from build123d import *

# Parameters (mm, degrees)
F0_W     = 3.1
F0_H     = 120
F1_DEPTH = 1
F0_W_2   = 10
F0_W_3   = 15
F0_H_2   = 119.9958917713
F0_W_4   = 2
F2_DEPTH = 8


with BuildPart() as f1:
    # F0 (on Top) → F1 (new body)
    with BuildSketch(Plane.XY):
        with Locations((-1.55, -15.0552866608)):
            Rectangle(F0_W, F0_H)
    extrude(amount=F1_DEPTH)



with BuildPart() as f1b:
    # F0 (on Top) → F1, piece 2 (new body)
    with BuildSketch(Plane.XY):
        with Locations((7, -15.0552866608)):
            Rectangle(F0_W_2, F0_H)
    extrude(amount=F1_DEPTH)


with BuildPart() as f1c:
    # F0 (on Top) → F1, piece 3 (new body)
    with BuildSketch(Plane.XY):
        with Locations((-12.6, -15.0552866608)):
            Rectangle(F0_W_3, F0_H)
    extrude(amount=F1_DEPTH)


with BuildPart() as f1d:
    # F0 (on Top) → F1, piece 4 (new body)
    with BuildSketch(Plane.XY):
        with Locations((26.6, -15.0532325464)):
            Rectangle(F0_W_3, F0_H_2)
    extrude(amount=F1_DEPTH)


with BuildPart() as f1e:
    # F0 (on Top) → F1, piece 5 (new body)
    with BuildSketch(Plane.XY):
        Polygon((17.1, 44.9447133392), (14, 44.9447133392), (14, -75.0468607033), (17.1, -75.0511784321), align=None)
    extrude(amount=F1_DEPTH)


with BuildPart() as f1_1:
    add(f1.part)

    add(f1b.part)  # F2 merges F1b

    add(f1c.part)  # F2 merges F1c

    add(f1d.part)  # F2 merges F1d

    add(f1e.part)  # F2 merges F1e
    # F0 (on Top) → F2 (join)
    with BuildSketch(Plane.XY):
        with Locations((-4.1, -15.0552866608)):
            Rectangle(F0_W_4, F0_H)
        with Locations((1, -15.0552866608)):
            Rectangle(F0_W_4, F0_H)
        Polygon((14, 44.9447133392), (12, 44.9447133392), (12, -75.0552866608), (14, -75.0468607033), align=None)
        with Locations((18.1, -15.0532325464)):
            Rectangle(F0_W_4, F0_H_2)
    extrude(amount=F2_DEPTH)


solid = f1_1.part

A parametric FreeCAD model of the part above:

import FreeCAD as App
import Part
import Sketcher
Q = App.Units.Quantity

doc = App.newDocument("Part")
body = doc.addObject("PartDesign::Body", "Body")

sketch1 = body.newObject("Sketcher::SketchObject", "Sketch")
sketch1.AttachmentSupport = (doc.getObject("XY_Plane"), [""])
sketch1.MapMode = "FlatFace"
sketch1.addGeometry([
    Part.LineSegment(App.Vector(-3.1, 44.9, 0), App.Vector(-3.1, -75.1, 0)),
    Part.LineSegment(App.Vector(-3.1, -75.1, 0), App.Vector(0, -75.1, 0)),
    Part.LineSegment(App.Vector(0, -75.1, 0), App.Vector(0, 44.9, 0)),
    Part.LineSegment(App.Vector(0, 44.9, 0), App.Vector(-3.1, 44.9, 0)),
], False)
sketch1.addConstraint([
    Sketcher.Constraint("Coincident", 0, 2, 1, 1),
    Sketcher.Constraint("Coincident", 1, 2, 2, 1),
    Sketcher.Constraint("Coincident", 2, 2, 3, 1),
    Sketcher.Constraint("Coincident", 3, 2, 0, 1),
    Sketcher.Constraint("Vertical", 0),
    Sketcher.Constraint("Horizontal", 1),
    Sketcher.Constraint("Vertical", 2),
    Sketcher.Constraint("Horizontal", 3),
    Sketcher.Constraint("PointOnObject", 1, 2, -2),
    Sketcher.Constraint("DistanceY", 0, 2, 0, 1, Q("120 mm")),
    Sketcher.Constraint("DistanceX", 1, 1, 1, 2, Q("3.1 mm")),
    Sketcher.Constraint("DistanceY", 0, 2, -1, 1, Q("75.055287 mm")),
])
pad1 = body.newObject("PartDesign::Pad", "Pad")
pad1.Profile = sketch1
pad1.Length = 1
body2 = doc.addObject("PartDesign::Body", "Body001")

sketch2 = body2.newObject("Sketcher::SketchObject", "Sketch001")
sketch2.AttachmentSupport = (doc.getObject("XY_Plane001"), [""])
sketch2.MapMode = "FlatFace"
sketch2.addGeometry([
    Part.LineSegment(App.Vector(2, 45, 0), App.Vector(2, -75, 0)),
    Part.LineSegment(App.Vector(2, -75, 0), App.Vector(12, -75, 0)),
    Part.LineSegment(App.Vector(12, -75, 0), App.Vector(12, 45, 0)),
    Part.LineSegment(App.Vector(12, 45, 0), App.Vector(2, 45, 0)),
], False)
sketch2.addConstraint([
    Sketcher.Constraint("Coincident", 0, 2, 1, 1),
    Sketcher.Constraint("Coincident", 1, 2, 2, 1),
    Sketcher.Constraint("Coincident", 2, 2, 3, 1),
    Sketcher.Constraint("Coincident", 3, 2, 0, 1),
    Sketcher.Constraint("Vertical", 0),
    Sketcher.Constraint("Horizontal", 1),
    Sketcher.Constraint("Vertical", 2),
    Sketcher.Constraint("Horizontal", 3),
    Sketcher.Constraint("DistanceX", 1, 1, 1, 2, Q("10 mm")),
    Sketcher.Constraint("DistanceY", 0, 2, 0, 1, Q("120 mm")),
    Sketcher.Constraint("DistanceX", -1, 1, 0, 2, Q("2 mm")),
    Sketcher.Constraint("DistanceY", 0, 2, -1, 1, Q("75.055287 mm")),
])
pad2 = body2.newObject("PartDesign::Pad", "Pad001")
pad2.Profile = sketch2
pad2.Length = 1
body3 = doc.addObject("PartDesign::Body", "Body002")

sketch3 = body3.newObject("Sketcher::SketchObject", "Sketch002")
sketch3.AttachmentSupport = (doc.getObject("XY_Plane002"), [""])
sketch3.MapMode = "FlatFace"
sketch3.addGeometry([
    Part.LineSegment(App.Vector(-20, 45, 0), App.Vector(-20, -75, 0)),
    Part.LineSegment(App.Vector(-20, -75, 0), App.Vector(-5, -75, 0)),
    Part.LineSegment(App.Vector(-5, -75, 0), App.Vector(-5, 45, 0)),
    Part.LineSegment(App.Vector(-5, 45, 0), App.Vector(-20, 45, 0)),
], False)
sketch3.addConstraint([
    Sketcher.Constraint("Coincident", 0, 2, 1, 1),
    Sketcher.Constraint("Coincident", 1, 2, 2, 1),
    Sketcher.Constraint("Coincident", 2, 2, 3, 1),
    Sketcher.Constraint("Coincident", 3, 2, 0, 1),
    Sketcher.Constraint("Vertical", 0),
    Sketcher.Constraint("Horizontal", 1),
    Sketcher.Constraint("Vertical", 2),
    Sketcher.Constraint("Horizontal", 3),
    Sketcher.Constraint("DistanceX", 1, 1, 1, 2, Q("15 mm")),
    Sketcher.Constraint("DistanceY", 0, 2, 0, 1, Q("120 mm")),
    Sketcher.Constraint("DistanceX", 0, 2, -1, 1, Q("20.1 mm")),
    Sketcher.Constraint("DistanceY", 0, 2, -1, 1, Q("75.055287 mm")),
])
pad3 = body3.newObject("PartDesign::Pad", "Pad002")
pad3.Profile = sketch3
pad3.Length = 1
body4 = doc.addObject("PartDesign::Body", "Body003")

sketch4 = body4.newObject("Sketcher::SketchObject", "Sketch003")
sketch4.AttachmentSupport = (doc.getObject("XY_Plane003"), [""])
sketch4.MapMode = "FlatFace"
sketch4.addGeometry([
    Part.LineSegment(App.Vector(19, 45, 0), App.Vector(19, -75, 0)),
    Part.LineSegment(App.Vector(19, -75, 0), App.Vector(34, -75, 0)),
    Part.LineSegment(App.Vector(34, -75, 0), App.Vector(34, 45, 0)),
    Part.LineSegment(App.Vector(34, 45, 0), App.Vector(19, 45, 0)),
], False)
sketch4.addConstraint([
    Sketcher.Constraint("Coincident", 0, 2, 1, 1),
    Sketcher.Constraint("Coincident", 1, 2, 2, 1),
    Sketcher.Constraint("Coincident", 2, 2, 3, 1),
    Sketcher.Constraint("Coincident", 3, 2, 0, 1),
    Sketcher.Constraint("Vertical", 0),
    Sketcher.Constraint("Horizontal", 1),
    Sketcher.Constraint("Vertical", 2),
    Sketcher.Constraint("Horizontal", 3),
    Sketcher.Constraint("DistanceX", 1, 1, 1, 2, Q("15 mm")),
    Sketcher.Constraint("DistanceX", -1, 1, 0, 2, Q("19.1 mm")),
    Sketcher.Constraint("DistanceY", 0, 2, 0, 1, Q("119.995892 mm")),
    Sketcher.Constraint("DistanceY", 0, 2, -1, 1, Q("75.051178 mm")),
])
pad4 = body4.newObject("PartDesign::Pad", "Pad003")
pad4.Profile = sketch4
pad4.Length = 1
body5 = doc.addObject("PartDesign::Body", "Body004")

sketch5 = body5.newObject("Sketcher::SketchObject", "Sketch004")
sketch5.AttachmentSupport = (doc.getObject("XY_Plane004"), [""])
sketch5.MapMode = "FlatFace"
sketch5.addGeometry([
    Part.LineSegment(App.Vector(17.1, 44.9, 0), App.Vector(14, 44.9, 0)),
    Part.LineSegment(App.Vector(14, 44.9, 0), App.Vector(14, -75, 0)),
    Part.LineSegment(App.Vector(14, -75, 0), App.Vector(17.1, -75.1, 0)),
    Part.LineSegment(App.Vector(17.1, -75.1, 0), App.Vector(17.1, 44.9, 0)),
], False)
sketch5.addConstraint([
    Sketcher.Constraint("Coincident", 0, 2, 1, 1),
    Sketcher.Constraint("Coincident", 1, 2, 2, 1),
    Sketcher.Constraint("Coincident", 2, 2, 3, 1),
    Sketcher.Constraint("Coincident", 3, 2, 0, 1),
    Sketcher.Constraint("Horizontal", 0),
    Sketcher.Constraint("Vertical", 1),
    Sketcher.Constraint("Vertical", 3),
    Sketcher.Constraint("DistanceX", 0, 2, 0, 1, Q("3.1 mm")),
    Sketcher.Constraint("DistanceX", -1, 1, 0, 2, Q("14 mm")),
    Sketcher.Constraint("DistanceY", 3, 1, 3, 2, Q("119.995892 mm")),
    Sketcher.Constraint("DistanceY", 1, 2, 1, 1, Q("119.991574 mm")),
    Sketcher.Constraint("DistanceY", 1, 2, -1, 1, Q("75.046861 mm")),
])
pad5 = body5.newObject("PartDesign::Pad", "Pad004")
pad5.Profile = sketch5
pad5.Length = 1
body.AllowCompound = True
doc.recompute()

boolean = body.newObject("PartDesign::Boolean", "Boolean")
boolean.Type = "Fuse"
boolean.addObjects([body2])
doc.recompute()

boolean2 = body.newObject("PartDesign::Boolean", "Boolean001")
boolean2.Type = "Fuse"
boolean2.addObjects([body3])
doc.recompute()

boolean3 = body.newObject("PartDesign::Boolean", "Boolean002")
boolean3.Type = "Fuse"
boolean3.addObjects([body4])
doc.recompute()

boolean4 = body.newObject("PartDesign::Boolean", "Boolean003")
boolean4.Type = "Fuse"
boolean4.addObjects([body5])

sketch6 = body.newObject("Sketcher::SketchObject", "Sketch005")
sketch6.AttachmentSupport = (doc.getObject("XY_Plane"), [""])
sketch6.MapMode = "FlatFace"
sketch6.addGeometry([
    Part.LineSegment(App.Vector(-5.1, 44.9, 0), App.Vector(-5.1, -75.1, 0)),
    Part.LineSegment(App.Vector(-5.1, -75.1, 0), App.Vector(-3.1, -75.1, 0)),
    Part.LineSegment(App.Vector(-3.1, -75.1, 0), App.Vector(-3.1, 44.9, 0)),
    Part.LineSegment(App.Vector(-3.1, 44.9, 0), App.Vector(-5.1, 44.9, 0)),
    Part.LineSegment(App.Vector(0, 44.9, 0), App.Vector(0, -75.1, 0)),
    Part.LineSegment(App.Vector(0, -75.1, 0), App.Vector(2, -75.1, 0)),
    Part.LineSegment(App.Vector(2, -75.1, 0), App.Vector(2, 44.9, 0)),
    Part.LineSegment(App.Vector(2, 44.9, 0), App.Vector(0, 44.9, 0)),
    Part.LineSegment(App.Vector(14, 44.9, 0), App.Vector(12, 44.9, 0)),
    Part.LineSegment(App.Vector(12, 44.9, 0), App.Vector(12, -75.1, 0)),
    Part.LineSegment(App.Vector(12, -75.1, 0), App.Vector(14, -75, 0)),
    Part.LineSegment(App.Vector(14, -75, 0), App.Vector(14, 44.9, 0)),
    Part.LineSegment(App.Vector(17.1, 44.9, 0), App.Vector(17.1, -75.1, 0)),
    Part.LineSegment(App.Vector(17.1, -75.1, 0), App.Vector(19.1, -75.1, 0)),
    Part.LineSegment(App.Vector(19.1, -75.1, 0), App.Vector(19.1, 44.9, 0)),
    Part.LineSegment(App.Vector(19.1, 44.9, 0), App.Vector(17.1, 44.9, 0)),
], False)
sketch6.addConstraint([
    Sketcher.Constraint("Coincident", 0, 2, 1, 1),
    Sketcher.Constraint("Coincident", 1, 2, 2, 1),
    Sketcher.Constraint("Coincident", 2, 2, 3, 1),
    Sketcher.Constraint("Coincident", 3, 2, 0, 1),
    Sketcher.Constraint("Coincident", 4, 2, 5, 1),
    Sketcher.Constraint("Coincident", 5, 2, 6, 1),
    Sketcher.Constraint("Coincident", 6, 2, 7, 1),
    Sketcher.Constraint("Coincident", 7, 2, 4, 1),
    Sketcher.Constraint("Coincident", 8, 2, 9, 1),
    Sketcher.Constraint("Coincident", 9, 2, 10, 1),
    Sketcher.Constraint("Coincident", 10, 2, 11, 1),
    Sketcher.Constraint("Coincident", 11, 2, 8, 1),
    Sketcher.Constraint("Coincident", 12, 2, 13, 1),
    Sketcher.Constraint("Coincident", 13, 2, 14, 1),
    Sketcher.Constraint("Coincident", 14, 2, 15, 1),
    Sketcher.Constraint("Coincident", 15, 2, 12, 1),
    Sketcher.Constraint("Vertical", 0),
    Sketcher.Constraint("Horizontal", 1),
    Sketcher.Constraint("Vertical", 2),
    Sketcher.Constraint("Horizontal", 3),
    Sketcher.Constraint("Vertical", 4),
    Sketcher.Constraint("Horizontal", 5),
    Sketcher.Constraint("Vertical", 6),
    Sketcher.Constraint("Horizontal", 7),
    Sketcher.Constraint("Horizontal", 8),
    Sketcher.Constraint("Vertical", 9),
    Sketcher.Constraint("Vertical", 11),
    Sketcher.Constraint("Vertical", 12),
    Sketcher.Constraint("Horizontal", 13),
    Sketcher.Constraint("Vertical", 14),
    Sketcher.Constraint("Horizontal", 15),
    Sketcher.Constraint("PointOnObject", 4, 2, -2),
    Sketcher.Constraint("Horizontal", 1, 2, 4, 2),
    Sketcher.Constraint("Horizontal", 3, 2, 6, 2),
    Sketcher.Constraint("Horizontal", 7, 2, 8, 2),
    Sketcher.Constraint("Horizontal", 5, 2, 9, 2),
    Sketcher.Constraint("Horizontal", 11, 2, 14, 2),
    Sketcher.Constraint("Equal", 3, 5),
    Sketcher.Constraint("Equal", 7, 8),
    Sketcher.Constraint("Equal", 8, 13),
    Sketcher.Constraint("DistanceX", 1, 1, 1, 2, Q("2 mm")),
    Sketcher.Constraint("DistanceY", 0, 2, 0, 1, Q("120 mm")),
    Sketcher.Constraint("DistanceX", -1, 1, 8, 2, Q("12 mm")),
    Sketcher.Constraint("DistanceX", 0, 2, -1, 1, Q("5.1 mm")),
    Sketcher.Constraint("DistanceX", -1, 1, 12, 2, Q("17.1 mm")),
    Sketcher.Constraint("DistanceY", 12, 2, 12, 1, Q("119.995892 mm")),
    Sketcher.Constraint("DistanceY", 11, 1, 11, 2, Q("119.991574 mm")),
    Sketcher.Constraint("DistanceY", 10, 2, -1, 1, Q("75.046861 mm")),
])
pad6 = body.newObject("PartDesign::Pad", "Pad005")
pad6.Profile = sketch6
pad6.Length = 8

doc.recompute()
